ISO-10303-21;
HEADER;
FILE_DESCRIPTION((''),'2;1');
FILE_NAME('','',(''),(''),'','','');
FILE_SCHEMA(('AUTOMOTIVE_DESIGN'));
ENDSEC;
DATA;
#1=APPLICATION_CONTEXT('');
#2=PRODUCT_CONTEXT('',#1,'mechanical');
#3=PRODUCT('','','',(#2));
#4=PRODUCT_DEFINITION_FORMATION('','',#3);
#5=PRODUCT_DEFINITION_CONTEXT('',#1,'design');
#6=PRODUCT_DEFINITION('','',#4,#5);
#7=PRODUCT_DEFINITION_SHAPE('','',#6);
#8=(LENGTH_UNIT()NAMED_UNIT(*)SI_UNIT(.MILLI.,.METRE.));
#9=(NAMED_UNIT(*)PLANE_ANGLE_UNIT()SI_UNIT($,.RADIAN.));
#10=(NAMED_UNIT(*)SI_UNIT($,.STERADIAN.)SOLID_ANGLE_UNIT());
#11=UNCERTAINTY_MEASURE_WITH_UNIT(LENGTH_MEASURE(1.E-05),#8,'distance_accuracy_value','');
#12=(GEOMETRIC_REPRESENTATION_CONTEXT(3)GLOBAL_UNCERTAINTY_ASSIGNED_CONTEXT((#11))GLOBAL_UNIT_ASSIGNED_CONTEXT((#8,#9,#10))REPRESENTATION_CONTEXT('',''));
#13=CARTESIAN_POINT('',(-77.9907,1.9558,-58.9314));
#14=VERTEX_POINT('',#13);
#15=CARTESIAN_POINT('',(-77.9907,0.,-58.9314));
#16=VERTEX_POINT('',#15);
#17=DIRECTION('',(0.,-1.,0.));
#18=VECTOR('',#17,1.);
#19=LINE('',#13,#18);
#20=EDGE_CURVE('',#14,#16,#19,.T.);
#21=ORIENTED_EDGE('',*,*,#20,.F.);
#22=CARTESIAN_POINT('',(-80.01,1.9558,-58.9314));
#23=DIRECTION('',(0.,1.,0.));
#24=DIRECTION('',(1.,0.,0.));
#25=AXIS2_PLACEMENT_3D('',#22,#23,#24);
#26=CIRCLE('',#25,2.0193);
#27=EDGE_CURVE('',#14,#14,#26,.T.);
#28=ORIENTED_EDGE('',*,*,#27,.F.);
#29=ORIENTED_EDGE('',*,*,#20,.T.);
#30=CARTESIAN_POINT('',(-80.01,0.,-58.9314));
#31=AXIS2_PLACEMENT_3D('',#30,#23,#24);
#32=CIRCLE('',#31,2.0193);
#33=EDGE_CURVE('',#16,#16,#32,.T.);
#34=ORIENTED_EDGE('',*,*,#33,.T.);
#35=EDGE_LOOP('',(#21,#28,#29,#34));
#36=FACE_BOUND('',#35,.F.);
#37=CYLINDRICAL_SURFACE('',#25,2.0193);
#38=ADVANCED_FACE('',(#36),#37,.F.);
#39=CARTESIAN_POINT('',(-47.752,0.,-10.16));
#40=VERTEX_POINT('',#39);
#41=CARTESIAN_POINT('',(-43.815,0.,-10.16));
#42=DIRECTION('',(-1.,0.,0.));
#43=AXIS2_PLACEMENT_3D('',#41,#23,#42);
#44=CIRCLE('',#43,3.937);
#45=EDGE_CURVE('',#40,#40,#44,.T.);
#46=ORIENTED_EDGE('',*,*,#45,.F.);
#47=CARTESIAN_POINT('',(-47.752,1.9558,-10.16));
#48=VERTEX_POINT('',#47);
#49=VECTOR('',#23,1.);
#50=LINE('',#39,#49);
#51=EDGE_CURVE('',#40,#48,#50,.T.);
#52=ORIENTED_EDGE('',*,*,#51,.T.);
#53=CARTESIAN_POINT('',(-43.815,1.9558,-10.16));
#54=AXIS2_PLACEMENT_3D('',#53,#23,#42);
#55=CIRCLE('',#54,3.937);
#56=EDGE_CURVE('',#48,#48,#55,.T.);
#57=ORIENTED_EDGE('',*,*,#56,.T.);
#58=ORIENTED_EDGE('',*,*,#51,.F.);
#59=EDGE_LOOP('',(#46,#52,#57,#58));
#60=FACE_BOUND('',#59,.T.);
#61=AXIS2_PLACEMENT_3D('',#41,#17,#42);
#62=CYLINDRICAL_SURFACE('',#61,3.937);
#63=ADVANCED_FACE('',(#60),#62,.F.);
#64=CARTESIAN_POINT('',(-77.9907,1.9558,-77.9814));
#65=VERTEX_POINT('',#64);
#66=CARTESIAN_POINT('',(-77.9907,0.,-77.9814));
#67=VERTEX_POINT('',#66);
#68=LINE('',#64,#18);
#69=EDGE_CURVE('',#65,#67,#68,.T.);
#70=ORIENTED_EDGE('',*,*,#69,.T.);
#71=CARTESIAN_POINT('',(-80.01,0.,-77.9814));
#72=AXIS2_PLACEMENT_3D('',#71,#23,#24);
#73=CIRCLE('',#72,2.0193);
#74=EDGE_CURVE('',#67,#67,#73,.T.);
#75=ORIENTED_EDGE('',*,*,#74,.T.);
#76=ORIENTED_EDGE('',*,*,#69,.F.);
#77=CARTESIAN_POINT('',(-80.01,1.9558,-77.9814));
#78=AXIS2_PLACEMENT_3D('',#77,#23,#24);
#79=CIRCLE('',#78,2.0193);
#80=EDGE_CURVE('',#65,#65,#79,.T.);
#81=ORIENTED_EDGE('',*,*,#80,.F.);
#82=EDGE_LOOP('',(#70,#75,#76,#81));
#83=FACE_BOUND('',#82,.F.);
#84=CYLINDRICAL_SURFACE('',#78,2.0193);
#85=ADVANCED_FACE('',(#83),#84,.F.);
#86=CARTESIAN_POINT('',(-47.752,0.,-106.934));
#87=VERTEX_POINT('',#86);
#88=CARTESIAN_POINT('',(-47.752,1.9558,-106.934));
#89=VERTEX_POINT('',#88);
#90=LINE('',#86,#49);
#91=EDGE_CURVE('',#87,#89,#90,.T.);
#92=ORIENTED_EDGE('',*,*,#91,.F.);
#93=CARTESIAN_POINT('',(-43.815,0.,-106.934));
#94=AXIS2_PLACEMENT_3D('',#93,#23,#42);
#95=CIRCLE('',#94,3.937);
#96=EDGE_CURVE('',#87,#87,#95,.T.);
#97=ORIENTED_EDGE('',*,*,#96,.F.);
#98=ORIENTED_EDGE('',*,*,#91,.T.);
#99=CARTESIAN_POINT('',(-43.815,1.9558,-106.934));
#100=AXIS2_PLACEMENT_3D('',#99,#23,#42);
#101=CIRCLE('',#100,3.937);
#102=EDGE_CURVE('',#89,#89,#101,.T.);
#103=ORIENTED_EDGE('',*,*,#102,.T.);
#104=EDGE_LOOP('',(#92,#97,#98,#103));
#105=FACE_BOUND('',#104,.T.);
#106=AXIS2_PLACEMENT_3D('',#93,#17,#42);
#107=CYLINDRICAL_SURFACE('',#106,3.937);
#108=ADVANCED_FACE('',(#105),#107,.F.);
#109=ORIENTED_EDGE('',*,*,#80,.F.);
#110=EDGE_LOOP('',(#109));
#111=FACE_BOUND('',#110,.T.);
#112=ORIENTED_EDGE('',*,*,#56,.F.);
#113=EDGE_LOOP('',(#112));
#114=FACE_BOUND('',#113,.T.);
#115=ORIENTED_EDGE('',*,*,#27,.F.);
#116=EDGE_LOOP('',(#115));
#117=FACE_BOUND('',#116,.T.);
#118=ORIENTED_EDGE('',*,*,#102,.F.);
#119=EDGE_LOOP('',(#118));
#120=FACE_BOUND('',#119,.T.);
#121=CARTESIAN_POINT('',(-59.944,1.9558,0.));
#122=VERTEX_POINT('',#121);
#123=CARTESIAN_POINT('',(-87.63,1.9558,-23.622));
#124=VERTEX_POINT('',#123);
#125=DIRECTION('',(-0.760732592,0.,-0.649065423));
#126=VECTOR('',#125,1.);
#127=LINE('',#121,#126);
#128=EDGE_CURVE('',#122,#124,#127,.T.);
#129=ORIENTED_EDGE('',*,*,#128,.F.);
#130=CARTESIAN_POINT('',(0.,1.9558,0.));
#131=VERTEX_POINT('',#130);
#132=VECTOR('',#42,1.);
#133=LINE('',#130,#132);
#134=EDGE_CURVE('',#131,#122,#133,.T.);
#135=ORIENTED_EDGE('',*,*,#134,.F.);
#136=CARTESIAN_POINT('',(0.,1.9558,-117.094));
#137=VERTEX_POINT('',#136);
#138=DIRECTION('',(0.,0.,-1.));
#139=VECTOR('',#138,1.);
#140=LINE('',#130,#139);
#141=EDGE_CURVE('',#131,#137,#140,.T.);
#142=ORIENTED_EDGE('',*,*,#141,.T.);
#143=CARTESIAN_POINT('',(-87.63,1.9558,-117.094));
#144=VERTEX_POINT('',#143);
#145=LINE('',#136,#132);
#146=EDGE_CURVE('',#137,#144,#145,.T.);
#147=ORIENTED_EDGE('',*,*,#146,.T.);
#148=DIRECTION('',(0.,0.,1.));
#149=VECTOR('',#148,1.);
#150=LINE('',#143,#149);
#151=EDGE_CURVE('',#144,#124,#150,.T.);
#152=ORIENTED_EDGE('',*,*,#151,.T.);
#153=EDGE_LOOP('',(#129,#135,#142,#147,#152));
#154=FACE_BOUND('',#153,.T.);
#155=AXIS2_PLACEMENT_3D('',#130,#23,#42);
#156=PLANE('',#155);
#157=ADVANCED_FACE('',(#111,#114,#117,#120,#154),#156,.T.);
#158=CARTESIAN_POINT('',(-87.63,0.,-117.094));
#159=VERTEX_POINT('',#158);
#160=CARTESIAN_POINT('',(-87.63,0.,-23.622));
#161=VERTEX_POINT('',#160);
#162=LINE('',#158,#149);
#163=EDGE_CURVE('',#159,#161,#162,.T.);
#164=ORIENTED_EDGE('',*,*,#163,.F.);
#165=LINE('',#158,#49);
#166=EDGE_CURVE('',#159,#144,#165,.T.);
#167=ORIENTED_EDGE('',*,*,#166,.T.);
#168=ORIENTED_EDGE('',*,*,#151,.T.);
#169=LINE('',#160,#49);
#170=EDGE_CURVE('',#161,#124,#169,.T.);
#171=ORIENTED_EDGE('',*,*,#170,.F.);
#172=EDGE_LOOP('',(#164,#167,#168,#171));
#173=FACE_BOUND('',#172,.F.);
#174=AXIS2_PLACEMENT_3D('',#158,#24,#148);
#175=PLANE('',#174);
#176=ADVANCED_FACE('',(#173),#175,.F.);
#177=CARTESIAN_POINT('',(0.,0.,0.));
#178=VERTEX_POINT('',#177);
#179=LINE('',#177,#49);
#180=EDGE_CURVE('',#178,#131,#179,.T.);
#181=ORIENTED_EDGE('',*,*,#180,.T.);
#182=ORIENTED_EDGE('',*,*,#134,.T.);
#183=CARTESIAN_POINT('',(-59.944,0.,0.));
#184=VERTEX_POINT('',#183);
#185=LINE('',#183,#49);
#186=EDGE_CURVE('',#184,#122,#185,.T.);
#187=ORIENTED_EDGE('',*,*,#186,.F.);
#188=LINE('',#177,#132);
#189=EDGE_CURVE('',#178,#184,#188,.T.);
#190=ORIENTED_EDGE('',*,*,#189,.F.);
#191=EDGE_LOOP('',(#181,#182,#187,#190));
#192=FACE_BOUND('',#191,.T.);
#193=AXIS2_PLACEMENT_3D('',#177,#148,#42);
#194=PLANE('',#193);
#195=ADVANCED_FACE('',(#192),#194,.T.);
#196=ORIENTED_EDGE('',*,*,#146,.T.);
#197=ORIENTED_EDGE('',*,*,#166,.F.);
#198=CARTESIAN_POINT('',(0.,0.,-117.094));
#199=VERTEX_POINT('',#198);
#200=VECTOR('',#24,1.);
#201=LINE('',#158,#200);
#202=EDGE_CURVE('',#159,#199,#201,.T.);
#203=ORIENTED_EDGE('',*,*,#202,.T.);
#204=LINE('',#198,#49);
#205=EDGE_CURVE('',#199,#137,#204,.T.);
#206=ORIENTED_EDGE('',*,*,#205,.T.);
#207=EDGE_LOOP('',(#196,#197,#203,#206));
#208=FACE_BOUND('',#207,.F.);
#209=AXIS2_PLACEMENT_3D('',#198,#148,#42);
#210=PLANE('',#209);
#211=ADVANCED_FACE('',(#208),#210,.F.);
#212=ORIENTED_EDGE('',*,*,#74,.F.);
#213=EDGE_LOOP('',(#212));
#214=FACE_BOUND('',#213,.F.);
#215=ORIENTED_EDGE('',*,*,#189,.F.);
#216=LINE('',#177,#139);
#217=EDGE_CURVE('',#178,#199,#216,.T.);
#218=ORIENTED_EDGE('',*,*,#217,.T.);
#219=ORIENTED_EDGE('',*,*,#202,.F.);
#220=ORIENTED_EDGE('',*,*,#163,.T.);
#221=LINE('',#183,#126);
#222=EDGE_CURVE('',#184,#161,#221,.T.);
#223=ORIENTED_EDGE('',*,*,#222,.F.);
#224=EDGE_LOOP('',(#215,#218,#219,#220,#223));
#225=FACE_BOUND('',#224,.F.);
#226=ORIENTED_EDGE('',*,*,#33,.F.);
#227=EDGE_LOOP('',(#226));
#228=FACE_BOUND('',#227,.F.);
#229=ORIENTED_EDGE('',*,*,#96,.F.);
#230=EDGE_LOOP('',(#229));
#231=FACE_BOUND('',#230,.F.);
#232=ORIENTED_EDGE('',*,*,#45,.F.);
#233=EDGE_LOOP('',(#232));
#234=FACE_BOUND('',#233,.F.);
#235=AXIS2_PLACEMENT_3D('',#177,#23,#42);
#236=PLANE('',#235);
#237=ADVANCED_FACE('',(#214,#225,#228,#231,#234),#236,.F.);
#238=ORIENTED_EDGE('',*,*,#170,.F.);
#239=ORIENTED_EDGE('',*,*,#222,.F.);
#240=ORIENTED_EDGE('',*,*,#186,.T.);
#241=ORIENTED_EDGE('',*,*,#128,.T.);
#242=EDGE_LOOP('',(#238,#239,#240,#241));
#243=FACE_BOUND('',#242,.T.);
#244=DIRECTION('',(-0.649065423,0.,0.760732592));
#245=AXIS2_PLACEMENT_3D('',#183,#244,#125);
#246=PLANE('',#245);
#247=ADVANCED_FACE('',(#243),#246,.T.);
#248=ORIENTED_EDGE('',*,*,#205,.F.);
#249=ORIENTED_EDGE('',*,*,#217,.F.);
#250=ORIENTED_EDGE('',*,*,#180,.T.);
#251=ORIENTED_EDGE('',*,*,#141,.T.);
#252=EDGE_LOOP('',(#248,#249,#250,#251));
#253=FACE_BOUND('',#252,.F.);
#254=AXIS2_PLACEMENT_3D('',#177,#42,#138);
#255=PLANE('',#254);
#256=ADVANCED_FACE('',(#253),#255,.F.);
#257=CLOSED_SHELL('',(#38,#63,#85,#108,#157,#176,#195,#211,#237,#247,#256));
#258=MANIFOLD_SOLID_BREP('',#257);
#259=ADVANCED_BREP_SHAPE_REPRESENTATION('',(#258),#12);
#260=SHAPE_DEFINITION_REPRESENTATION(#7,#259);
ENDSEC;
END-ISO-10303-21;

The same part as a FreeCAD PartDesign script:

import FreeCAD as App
import Part
import Sketcher
Q = App.Units.Quantity

doc = App.newDocument("Part")
params = doc.addObject("Spreadsheet::Sheet", "Params")
for row, (alias, value) in enumerate([
    ("sketch1_width", "2.36 in"),
    ("sketch1_width2", "3.45 in"),
    ("sketch1_height", "4.61 in"),
    ("sketch1_height2", "3.68 in"),
    ("sketch1_diameter", "0.31 in"),
    ("pad1_length", "0.077 in"),
    ("sketch2_diameter", "0.159 in"),
    ("pocket1_length", "1 in"),
], start=1):
    params.set(f"A{row}", alias)
    params.set(f"B{row}", "=" + value)
    params.setAlias(f"B{row}", alias)

body = doc.addObject("PartDesign::Body", "Body")

# Sketch on XZ plane
sketch1 = body.newObject("Sketcher::SketchObject", "Sketch")
sketch1.AttachmentSupport = (doc.getObject("XZ_Plane"), [""])
sketch1.MapMode = "FlatFace"
sketch1.addGeometry([
    Part.LineSegment(App.Vector(-59.9, 0, 0), App.Vector(0, 0, 0)),  # 0
    Part.LineSegment(App.Vector(0, 0, 0), App.Vector(0, -117.1, 0)),  # 1
    Part.LineSegment(App.Vector(0, -117.1, 0), App.Vector(-87.6, -117.1, 0)),  # 2
    Part.LineSegment(App.Vector(-87.6, -117.1, 0), App.Vector(-87.6, -23.6, 0)),  # 3
    Part.LineSegment(App.Vector(-87.6, -23.6, 0), App.Vector(-59.9, 0, 0)),  # 4
    Part.Circle(App.Vector(-43.8, -106.9, 0), App.Vector(0, 0, 1), 3.9),  # 5
    Part.Circle(App.Vector(-43.8, -10.2, 0), App.Vector(0, 0, 1), 3.9),  # 6
], False)
sketch1.addConstraint([
    Sketcher.Constraint("Coincident", 0, 2, 1, 1),
    Sketcher.Constraint("Coincident", 1, 2, 2, 1),
    Sketcher.Constraint("Coincident", 2, 2, 3, 1),
    Sketcher.Constraint("Coincident", 3, 2, 4, 1),
    Sketcher.Constraint("Coincident", 4, 2, 0, 1),
    Sketcher.Constraint("Horizontal", 0),
    Sketcher.Constraint("Vertical", 1),
    Sketcher.Constraint("Horizontal", 2),
    Sketcher.Constraint("Vertical", 3),
    Sketcher.Constraint("Coincident", 0, 2, -1, 1),
    Sketcher.Constraint("Equal", 5, 6),
    Sketcher.Constraint("Vertical", 5, 3, 6, 3),
    Sketcher.Constraint("DistanceX", 0, 1, 0, 2, Q("2.36 in")),
    Sketcher.Constraint("DistanceX", 2, 2, 2, 1, Q("3.45 in")),
    Sketcher.Constraint("DistanceY", 1, 2, 1, 1, Q("4.61 in")),
    Sketcher.Constraint("DistanceY", 3, 1, 3, 2, Q("3.68 in")),
    Sketcher.Constraint("Diameter", 5, Q("0.31 in")),
    Sketcher.Constraint("DistanceY", 6, 3, -1, 1, Q("0.4 in")),
    Sketcher.Constraint("DistanceY", 1, 2, 5, 3, Q("0.4 in")),
    Sketcher.Constraint("DistanceX", 5, 3, -1, 1, Q("1.725 in")),
])
sketch1.setExpression("Constraints[12]", "Params.sketch1_width")
sketch1.setExpression("Constraints[13]", "Params.sketch1_width2")
sketch1.setExpression("Constraints[14]", "Params.sketch1_height")
sketch1.setExpression("Constraints[15]", "Params.sketch1_height2")
sketch1.setExpression("Constraints[16]", "Params.sketch1_diameter")
pad1 = body.newObject("PartDesign::Pad", "Pad")
pad1.Profile = sketch1
pad1.setExpression("Length", "Params.pad1_length")
pad1.Reversed = True

# Sketch on XZ plane
sketch2 = body.newObject("Sketcher::SketchObject", "Sketch001")
sketch2.AttachmentSupport = (doc.getObject("XZ_Plane"), [""])
sketch2.MapMode = "FlatFace"
sketch2.AttachmentOffset = App.Placement(App.Vector(0, 0, -0.077 * 25.4), App.Rotation())
sketch2.addGeometry([
    Part.Circle(App.Vector(-80, -58.9, 0), App.Vector(0, 0, 1), 2),
    Part.Circle(App.Vector(-80, -78, 0), App.Vector(0, 0, 1), 2),
], False)
sketch2.addConstraint([
    Sketcher.Constraint("Equal", 0, 1),
    Sketcher.Constraint("Vertical", 0, 3, 1, 3),
    Sketcher.Constraint("Diameter", 0, Q("0.159 in")),
    Sketcher.Constraint("DistanceX", 0, 3, -1, 1, Q("3.15 in")),
    Sketcher.Constraint("DistanceY", 1, 3, 0, 3, Q("0.75 in")),
    Sketcher.Constraint("DistanceY", 0, 3, -1, 1, Q("58.9314 mm")),
])
sketch2.setExpression("Constraints[2]", "Params.sketch2_diameter")
pocket1 = body.newObject("PartDesign::Pocket", "Pocket")
pocket1.Profile = sketch2
pocket1.setExpression("Length", "Params.pocket1_length")
pocket1.Reversed = True

doc.recompute()
